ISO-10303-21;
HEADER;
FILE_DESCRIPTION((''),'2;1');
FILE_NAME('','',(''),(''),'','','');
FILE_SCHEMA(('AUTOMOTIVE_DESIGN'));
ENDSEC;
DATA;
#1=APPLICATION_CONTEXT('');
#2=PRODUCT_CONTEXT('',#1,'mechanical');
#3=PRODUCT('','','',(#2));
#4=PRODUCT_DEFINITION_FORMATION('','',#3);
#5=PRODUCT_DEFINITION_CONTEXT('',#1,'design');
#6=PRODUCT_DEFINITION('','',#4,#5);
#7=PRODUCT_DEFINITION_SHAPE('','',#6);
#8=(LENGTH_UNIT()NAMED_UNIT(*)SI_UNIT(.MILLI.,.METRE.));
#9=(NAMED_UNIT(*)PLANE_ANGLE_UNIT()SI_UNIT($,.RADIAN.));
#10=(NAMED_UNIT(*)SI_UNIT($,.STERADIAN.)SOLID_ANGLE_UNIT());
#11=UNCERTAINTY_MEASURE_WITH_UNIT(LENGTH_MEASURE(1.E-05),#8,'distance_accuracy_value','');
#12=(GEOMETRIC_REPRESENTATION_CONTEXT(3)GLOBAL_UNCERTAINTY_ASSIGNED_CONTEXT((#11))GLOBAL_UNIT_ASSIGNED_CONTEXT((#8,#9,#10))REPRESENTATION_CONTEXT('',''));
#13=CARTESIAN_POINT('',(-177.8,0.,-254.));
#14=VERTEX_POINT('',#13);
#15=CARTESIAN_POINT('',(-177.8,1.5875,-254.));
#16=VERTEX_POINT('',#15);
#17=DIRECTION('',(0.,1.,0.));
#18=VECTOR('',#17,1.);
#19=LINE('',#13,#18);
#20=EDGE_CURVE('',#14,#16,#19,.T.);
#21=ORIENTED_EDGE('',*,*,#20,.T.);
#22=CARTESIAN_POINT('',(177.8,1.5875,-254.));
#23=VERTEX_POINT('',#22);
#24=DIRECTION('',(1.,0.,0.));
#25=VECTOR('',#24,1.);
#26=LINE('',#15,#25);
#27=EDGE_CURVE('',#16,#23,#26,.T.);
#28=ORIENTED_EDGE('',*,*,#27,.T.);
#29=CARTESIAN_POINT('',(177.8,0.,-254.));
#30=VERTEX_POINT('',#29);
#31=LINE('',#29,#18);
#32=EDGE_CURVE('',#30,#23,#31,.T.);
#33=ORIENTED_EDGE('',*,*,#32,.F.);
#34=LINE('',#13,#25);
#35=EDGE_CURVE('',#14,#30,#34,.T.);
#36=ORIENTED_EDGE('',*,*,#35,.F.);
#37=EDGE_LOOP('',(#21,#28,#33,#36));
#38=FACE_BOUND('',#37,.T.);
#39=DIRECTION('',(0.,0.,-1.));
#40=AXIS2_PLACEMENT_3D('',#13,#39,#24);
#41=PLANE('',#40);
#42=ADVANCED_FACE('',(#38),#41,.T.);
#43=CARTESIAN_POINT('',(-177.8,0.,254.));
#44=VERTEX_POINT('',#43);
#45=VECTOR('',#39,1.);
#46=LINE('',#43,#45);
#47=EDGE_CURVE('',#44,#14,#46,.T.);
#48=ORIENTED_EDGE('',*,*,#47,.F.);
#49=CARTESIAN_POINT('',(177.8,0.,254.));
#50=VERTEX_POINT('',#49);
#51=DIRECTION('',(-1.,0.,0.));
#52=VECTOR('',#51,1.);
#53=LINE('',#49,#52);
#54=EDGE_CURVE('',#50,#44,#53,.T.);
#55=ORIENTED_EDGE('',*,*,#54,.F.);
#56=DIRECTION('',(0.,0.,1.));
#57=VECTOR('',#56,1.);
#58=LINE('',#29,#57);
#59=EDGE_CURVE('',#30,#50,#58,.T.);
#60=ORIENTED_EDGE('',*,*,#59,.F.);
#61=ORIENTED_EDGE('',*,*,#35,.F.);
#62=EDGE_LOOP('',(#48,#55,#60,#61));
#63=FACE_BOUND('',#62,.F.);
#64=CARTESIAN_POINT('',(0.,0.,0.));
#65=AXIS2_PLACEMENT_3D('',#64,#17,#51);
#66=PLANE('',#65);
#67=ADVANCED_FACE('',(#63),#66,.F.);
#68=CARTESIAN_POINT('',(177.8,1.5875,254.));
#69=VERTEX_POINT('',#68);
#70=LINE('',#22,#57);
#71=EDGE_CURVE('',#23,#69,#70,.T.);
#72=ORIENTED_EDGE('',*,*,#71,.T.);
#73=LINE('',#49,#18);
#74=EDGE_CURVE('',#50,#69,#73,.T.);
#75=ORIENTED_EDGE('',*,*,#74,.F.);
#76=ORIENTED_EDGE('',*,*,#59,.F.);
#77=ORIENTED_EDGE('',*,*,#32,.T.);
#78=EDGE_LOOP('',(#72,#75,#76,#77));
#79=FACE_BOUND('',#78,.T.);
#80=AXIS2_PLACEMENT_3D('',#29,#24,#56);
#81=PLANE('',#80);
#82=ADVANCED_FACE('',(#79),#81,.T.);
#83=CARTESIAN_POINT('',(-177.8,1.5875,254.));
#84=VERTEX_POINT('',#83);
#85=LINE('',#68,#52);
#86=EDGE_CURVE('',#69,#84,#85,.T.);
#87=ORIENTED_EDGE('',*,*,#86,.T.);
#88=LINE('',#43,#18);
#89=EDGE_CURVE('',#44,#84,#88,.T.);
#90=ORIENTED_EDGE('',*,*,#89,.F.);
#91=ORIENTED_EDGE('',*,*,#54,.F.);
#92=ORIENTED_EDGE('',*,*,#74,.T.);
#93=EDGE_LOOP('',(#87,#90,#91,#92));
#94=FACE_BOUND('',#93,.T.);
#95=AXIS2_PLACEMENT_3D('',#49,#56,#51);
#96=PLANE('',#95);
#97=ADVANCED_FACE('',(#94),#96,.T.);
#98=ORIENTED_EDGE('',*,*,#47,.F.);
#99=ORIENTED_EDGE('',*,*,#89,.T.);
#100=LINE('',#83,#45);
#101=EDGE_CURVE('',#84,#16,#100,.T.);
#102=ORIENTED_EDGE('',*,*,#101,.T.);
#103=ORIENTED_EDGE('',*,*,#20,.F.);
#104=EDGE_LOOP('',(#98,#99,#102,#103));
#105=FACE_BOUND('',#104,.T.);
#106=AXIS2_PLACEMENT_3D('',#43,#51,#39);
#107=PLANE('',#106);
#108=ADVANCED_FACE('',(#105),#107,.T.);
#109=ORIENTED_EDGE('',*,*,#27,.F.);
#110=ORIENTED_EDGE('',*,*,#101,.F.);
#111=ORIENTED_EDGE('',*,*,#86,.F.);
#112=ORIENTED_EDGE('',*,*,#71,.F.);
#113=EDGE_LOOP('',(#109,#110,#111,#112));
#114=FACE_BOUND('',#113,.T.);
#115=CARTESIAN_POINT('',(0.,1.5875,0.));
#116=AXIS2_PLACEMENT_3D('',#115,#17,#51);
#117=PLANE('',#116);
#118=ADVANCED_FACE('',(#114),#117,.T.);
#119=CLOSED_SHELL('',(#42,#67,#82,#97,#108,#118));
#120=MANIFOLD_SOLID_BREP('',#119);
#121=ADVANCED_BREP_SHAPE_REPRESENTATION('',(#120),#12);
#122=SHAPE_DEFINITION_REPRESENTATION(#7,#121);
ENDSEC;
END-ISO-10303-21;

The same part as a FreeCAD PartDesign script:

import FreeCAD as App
import Part
import Sketcher
from FreeCAD import Vector
Q = App.Units.Quantity


def add_polygon(sketch, points):
    """Adds a closed chain of lines whose ends are joined by coincident constraints."""
    first, n = sketch.GeometryCount, len(points)
    for a, b in zip(points, points[1:] + points[:1]):
        sketch.addGeometry(Part.LineSegment(App.Vector(*a, 0), App.Vector(*b, 0)), False)
    for i in range(n):
        sketch.addConstraint(Sketcher.Constraint("Coincident", first + i, 2, first + (i + 1) % n, 1))

doc = App.newDocument("Part")
body = doc.addObject("PartDesign::Body", "Body")

# Sketch on XZ plane
sketch1 = doc.addObject("Sketcher::SketchObject", "Sketch")
body.addObject(sketch1)
sketch1.AttachmentSupport = (doc.XZ_Plane, [""])
sketch1.MapMode = "FlatFace"
add_polygon(sketch1, [(178, -254), (-178, -254), (-178, 254), (178, 254)])  # lines 0-3
sketch1.addConstraint([
    Sketcher.Constraint("Horizontal", 0),
    Sketcher.Constraint("Vertical", 1),
    Sketcher.Constraint("Horizontal", 2),
    Sketcher.Constraint("Vertical", 3),
    Sketcher.Constraint("Symmetric", 0, 2, 2, 2, -1, 1),
    Sketcher.Constraint("DistanceX", 0, 2, 0, 1, Q("14 in")),
    Sketcher.Constraint("DistanceY", 1, 1, 1, 2, Q("20 in")),
])
pad1 = doc.addObject("PartDesign::Pad", "Pad")
body.addObject(pad1)
pad1.Profile = sketch1
pad1.Length = Q("0.0625 in")
pad1.Reversed = True

doc.recompute()
